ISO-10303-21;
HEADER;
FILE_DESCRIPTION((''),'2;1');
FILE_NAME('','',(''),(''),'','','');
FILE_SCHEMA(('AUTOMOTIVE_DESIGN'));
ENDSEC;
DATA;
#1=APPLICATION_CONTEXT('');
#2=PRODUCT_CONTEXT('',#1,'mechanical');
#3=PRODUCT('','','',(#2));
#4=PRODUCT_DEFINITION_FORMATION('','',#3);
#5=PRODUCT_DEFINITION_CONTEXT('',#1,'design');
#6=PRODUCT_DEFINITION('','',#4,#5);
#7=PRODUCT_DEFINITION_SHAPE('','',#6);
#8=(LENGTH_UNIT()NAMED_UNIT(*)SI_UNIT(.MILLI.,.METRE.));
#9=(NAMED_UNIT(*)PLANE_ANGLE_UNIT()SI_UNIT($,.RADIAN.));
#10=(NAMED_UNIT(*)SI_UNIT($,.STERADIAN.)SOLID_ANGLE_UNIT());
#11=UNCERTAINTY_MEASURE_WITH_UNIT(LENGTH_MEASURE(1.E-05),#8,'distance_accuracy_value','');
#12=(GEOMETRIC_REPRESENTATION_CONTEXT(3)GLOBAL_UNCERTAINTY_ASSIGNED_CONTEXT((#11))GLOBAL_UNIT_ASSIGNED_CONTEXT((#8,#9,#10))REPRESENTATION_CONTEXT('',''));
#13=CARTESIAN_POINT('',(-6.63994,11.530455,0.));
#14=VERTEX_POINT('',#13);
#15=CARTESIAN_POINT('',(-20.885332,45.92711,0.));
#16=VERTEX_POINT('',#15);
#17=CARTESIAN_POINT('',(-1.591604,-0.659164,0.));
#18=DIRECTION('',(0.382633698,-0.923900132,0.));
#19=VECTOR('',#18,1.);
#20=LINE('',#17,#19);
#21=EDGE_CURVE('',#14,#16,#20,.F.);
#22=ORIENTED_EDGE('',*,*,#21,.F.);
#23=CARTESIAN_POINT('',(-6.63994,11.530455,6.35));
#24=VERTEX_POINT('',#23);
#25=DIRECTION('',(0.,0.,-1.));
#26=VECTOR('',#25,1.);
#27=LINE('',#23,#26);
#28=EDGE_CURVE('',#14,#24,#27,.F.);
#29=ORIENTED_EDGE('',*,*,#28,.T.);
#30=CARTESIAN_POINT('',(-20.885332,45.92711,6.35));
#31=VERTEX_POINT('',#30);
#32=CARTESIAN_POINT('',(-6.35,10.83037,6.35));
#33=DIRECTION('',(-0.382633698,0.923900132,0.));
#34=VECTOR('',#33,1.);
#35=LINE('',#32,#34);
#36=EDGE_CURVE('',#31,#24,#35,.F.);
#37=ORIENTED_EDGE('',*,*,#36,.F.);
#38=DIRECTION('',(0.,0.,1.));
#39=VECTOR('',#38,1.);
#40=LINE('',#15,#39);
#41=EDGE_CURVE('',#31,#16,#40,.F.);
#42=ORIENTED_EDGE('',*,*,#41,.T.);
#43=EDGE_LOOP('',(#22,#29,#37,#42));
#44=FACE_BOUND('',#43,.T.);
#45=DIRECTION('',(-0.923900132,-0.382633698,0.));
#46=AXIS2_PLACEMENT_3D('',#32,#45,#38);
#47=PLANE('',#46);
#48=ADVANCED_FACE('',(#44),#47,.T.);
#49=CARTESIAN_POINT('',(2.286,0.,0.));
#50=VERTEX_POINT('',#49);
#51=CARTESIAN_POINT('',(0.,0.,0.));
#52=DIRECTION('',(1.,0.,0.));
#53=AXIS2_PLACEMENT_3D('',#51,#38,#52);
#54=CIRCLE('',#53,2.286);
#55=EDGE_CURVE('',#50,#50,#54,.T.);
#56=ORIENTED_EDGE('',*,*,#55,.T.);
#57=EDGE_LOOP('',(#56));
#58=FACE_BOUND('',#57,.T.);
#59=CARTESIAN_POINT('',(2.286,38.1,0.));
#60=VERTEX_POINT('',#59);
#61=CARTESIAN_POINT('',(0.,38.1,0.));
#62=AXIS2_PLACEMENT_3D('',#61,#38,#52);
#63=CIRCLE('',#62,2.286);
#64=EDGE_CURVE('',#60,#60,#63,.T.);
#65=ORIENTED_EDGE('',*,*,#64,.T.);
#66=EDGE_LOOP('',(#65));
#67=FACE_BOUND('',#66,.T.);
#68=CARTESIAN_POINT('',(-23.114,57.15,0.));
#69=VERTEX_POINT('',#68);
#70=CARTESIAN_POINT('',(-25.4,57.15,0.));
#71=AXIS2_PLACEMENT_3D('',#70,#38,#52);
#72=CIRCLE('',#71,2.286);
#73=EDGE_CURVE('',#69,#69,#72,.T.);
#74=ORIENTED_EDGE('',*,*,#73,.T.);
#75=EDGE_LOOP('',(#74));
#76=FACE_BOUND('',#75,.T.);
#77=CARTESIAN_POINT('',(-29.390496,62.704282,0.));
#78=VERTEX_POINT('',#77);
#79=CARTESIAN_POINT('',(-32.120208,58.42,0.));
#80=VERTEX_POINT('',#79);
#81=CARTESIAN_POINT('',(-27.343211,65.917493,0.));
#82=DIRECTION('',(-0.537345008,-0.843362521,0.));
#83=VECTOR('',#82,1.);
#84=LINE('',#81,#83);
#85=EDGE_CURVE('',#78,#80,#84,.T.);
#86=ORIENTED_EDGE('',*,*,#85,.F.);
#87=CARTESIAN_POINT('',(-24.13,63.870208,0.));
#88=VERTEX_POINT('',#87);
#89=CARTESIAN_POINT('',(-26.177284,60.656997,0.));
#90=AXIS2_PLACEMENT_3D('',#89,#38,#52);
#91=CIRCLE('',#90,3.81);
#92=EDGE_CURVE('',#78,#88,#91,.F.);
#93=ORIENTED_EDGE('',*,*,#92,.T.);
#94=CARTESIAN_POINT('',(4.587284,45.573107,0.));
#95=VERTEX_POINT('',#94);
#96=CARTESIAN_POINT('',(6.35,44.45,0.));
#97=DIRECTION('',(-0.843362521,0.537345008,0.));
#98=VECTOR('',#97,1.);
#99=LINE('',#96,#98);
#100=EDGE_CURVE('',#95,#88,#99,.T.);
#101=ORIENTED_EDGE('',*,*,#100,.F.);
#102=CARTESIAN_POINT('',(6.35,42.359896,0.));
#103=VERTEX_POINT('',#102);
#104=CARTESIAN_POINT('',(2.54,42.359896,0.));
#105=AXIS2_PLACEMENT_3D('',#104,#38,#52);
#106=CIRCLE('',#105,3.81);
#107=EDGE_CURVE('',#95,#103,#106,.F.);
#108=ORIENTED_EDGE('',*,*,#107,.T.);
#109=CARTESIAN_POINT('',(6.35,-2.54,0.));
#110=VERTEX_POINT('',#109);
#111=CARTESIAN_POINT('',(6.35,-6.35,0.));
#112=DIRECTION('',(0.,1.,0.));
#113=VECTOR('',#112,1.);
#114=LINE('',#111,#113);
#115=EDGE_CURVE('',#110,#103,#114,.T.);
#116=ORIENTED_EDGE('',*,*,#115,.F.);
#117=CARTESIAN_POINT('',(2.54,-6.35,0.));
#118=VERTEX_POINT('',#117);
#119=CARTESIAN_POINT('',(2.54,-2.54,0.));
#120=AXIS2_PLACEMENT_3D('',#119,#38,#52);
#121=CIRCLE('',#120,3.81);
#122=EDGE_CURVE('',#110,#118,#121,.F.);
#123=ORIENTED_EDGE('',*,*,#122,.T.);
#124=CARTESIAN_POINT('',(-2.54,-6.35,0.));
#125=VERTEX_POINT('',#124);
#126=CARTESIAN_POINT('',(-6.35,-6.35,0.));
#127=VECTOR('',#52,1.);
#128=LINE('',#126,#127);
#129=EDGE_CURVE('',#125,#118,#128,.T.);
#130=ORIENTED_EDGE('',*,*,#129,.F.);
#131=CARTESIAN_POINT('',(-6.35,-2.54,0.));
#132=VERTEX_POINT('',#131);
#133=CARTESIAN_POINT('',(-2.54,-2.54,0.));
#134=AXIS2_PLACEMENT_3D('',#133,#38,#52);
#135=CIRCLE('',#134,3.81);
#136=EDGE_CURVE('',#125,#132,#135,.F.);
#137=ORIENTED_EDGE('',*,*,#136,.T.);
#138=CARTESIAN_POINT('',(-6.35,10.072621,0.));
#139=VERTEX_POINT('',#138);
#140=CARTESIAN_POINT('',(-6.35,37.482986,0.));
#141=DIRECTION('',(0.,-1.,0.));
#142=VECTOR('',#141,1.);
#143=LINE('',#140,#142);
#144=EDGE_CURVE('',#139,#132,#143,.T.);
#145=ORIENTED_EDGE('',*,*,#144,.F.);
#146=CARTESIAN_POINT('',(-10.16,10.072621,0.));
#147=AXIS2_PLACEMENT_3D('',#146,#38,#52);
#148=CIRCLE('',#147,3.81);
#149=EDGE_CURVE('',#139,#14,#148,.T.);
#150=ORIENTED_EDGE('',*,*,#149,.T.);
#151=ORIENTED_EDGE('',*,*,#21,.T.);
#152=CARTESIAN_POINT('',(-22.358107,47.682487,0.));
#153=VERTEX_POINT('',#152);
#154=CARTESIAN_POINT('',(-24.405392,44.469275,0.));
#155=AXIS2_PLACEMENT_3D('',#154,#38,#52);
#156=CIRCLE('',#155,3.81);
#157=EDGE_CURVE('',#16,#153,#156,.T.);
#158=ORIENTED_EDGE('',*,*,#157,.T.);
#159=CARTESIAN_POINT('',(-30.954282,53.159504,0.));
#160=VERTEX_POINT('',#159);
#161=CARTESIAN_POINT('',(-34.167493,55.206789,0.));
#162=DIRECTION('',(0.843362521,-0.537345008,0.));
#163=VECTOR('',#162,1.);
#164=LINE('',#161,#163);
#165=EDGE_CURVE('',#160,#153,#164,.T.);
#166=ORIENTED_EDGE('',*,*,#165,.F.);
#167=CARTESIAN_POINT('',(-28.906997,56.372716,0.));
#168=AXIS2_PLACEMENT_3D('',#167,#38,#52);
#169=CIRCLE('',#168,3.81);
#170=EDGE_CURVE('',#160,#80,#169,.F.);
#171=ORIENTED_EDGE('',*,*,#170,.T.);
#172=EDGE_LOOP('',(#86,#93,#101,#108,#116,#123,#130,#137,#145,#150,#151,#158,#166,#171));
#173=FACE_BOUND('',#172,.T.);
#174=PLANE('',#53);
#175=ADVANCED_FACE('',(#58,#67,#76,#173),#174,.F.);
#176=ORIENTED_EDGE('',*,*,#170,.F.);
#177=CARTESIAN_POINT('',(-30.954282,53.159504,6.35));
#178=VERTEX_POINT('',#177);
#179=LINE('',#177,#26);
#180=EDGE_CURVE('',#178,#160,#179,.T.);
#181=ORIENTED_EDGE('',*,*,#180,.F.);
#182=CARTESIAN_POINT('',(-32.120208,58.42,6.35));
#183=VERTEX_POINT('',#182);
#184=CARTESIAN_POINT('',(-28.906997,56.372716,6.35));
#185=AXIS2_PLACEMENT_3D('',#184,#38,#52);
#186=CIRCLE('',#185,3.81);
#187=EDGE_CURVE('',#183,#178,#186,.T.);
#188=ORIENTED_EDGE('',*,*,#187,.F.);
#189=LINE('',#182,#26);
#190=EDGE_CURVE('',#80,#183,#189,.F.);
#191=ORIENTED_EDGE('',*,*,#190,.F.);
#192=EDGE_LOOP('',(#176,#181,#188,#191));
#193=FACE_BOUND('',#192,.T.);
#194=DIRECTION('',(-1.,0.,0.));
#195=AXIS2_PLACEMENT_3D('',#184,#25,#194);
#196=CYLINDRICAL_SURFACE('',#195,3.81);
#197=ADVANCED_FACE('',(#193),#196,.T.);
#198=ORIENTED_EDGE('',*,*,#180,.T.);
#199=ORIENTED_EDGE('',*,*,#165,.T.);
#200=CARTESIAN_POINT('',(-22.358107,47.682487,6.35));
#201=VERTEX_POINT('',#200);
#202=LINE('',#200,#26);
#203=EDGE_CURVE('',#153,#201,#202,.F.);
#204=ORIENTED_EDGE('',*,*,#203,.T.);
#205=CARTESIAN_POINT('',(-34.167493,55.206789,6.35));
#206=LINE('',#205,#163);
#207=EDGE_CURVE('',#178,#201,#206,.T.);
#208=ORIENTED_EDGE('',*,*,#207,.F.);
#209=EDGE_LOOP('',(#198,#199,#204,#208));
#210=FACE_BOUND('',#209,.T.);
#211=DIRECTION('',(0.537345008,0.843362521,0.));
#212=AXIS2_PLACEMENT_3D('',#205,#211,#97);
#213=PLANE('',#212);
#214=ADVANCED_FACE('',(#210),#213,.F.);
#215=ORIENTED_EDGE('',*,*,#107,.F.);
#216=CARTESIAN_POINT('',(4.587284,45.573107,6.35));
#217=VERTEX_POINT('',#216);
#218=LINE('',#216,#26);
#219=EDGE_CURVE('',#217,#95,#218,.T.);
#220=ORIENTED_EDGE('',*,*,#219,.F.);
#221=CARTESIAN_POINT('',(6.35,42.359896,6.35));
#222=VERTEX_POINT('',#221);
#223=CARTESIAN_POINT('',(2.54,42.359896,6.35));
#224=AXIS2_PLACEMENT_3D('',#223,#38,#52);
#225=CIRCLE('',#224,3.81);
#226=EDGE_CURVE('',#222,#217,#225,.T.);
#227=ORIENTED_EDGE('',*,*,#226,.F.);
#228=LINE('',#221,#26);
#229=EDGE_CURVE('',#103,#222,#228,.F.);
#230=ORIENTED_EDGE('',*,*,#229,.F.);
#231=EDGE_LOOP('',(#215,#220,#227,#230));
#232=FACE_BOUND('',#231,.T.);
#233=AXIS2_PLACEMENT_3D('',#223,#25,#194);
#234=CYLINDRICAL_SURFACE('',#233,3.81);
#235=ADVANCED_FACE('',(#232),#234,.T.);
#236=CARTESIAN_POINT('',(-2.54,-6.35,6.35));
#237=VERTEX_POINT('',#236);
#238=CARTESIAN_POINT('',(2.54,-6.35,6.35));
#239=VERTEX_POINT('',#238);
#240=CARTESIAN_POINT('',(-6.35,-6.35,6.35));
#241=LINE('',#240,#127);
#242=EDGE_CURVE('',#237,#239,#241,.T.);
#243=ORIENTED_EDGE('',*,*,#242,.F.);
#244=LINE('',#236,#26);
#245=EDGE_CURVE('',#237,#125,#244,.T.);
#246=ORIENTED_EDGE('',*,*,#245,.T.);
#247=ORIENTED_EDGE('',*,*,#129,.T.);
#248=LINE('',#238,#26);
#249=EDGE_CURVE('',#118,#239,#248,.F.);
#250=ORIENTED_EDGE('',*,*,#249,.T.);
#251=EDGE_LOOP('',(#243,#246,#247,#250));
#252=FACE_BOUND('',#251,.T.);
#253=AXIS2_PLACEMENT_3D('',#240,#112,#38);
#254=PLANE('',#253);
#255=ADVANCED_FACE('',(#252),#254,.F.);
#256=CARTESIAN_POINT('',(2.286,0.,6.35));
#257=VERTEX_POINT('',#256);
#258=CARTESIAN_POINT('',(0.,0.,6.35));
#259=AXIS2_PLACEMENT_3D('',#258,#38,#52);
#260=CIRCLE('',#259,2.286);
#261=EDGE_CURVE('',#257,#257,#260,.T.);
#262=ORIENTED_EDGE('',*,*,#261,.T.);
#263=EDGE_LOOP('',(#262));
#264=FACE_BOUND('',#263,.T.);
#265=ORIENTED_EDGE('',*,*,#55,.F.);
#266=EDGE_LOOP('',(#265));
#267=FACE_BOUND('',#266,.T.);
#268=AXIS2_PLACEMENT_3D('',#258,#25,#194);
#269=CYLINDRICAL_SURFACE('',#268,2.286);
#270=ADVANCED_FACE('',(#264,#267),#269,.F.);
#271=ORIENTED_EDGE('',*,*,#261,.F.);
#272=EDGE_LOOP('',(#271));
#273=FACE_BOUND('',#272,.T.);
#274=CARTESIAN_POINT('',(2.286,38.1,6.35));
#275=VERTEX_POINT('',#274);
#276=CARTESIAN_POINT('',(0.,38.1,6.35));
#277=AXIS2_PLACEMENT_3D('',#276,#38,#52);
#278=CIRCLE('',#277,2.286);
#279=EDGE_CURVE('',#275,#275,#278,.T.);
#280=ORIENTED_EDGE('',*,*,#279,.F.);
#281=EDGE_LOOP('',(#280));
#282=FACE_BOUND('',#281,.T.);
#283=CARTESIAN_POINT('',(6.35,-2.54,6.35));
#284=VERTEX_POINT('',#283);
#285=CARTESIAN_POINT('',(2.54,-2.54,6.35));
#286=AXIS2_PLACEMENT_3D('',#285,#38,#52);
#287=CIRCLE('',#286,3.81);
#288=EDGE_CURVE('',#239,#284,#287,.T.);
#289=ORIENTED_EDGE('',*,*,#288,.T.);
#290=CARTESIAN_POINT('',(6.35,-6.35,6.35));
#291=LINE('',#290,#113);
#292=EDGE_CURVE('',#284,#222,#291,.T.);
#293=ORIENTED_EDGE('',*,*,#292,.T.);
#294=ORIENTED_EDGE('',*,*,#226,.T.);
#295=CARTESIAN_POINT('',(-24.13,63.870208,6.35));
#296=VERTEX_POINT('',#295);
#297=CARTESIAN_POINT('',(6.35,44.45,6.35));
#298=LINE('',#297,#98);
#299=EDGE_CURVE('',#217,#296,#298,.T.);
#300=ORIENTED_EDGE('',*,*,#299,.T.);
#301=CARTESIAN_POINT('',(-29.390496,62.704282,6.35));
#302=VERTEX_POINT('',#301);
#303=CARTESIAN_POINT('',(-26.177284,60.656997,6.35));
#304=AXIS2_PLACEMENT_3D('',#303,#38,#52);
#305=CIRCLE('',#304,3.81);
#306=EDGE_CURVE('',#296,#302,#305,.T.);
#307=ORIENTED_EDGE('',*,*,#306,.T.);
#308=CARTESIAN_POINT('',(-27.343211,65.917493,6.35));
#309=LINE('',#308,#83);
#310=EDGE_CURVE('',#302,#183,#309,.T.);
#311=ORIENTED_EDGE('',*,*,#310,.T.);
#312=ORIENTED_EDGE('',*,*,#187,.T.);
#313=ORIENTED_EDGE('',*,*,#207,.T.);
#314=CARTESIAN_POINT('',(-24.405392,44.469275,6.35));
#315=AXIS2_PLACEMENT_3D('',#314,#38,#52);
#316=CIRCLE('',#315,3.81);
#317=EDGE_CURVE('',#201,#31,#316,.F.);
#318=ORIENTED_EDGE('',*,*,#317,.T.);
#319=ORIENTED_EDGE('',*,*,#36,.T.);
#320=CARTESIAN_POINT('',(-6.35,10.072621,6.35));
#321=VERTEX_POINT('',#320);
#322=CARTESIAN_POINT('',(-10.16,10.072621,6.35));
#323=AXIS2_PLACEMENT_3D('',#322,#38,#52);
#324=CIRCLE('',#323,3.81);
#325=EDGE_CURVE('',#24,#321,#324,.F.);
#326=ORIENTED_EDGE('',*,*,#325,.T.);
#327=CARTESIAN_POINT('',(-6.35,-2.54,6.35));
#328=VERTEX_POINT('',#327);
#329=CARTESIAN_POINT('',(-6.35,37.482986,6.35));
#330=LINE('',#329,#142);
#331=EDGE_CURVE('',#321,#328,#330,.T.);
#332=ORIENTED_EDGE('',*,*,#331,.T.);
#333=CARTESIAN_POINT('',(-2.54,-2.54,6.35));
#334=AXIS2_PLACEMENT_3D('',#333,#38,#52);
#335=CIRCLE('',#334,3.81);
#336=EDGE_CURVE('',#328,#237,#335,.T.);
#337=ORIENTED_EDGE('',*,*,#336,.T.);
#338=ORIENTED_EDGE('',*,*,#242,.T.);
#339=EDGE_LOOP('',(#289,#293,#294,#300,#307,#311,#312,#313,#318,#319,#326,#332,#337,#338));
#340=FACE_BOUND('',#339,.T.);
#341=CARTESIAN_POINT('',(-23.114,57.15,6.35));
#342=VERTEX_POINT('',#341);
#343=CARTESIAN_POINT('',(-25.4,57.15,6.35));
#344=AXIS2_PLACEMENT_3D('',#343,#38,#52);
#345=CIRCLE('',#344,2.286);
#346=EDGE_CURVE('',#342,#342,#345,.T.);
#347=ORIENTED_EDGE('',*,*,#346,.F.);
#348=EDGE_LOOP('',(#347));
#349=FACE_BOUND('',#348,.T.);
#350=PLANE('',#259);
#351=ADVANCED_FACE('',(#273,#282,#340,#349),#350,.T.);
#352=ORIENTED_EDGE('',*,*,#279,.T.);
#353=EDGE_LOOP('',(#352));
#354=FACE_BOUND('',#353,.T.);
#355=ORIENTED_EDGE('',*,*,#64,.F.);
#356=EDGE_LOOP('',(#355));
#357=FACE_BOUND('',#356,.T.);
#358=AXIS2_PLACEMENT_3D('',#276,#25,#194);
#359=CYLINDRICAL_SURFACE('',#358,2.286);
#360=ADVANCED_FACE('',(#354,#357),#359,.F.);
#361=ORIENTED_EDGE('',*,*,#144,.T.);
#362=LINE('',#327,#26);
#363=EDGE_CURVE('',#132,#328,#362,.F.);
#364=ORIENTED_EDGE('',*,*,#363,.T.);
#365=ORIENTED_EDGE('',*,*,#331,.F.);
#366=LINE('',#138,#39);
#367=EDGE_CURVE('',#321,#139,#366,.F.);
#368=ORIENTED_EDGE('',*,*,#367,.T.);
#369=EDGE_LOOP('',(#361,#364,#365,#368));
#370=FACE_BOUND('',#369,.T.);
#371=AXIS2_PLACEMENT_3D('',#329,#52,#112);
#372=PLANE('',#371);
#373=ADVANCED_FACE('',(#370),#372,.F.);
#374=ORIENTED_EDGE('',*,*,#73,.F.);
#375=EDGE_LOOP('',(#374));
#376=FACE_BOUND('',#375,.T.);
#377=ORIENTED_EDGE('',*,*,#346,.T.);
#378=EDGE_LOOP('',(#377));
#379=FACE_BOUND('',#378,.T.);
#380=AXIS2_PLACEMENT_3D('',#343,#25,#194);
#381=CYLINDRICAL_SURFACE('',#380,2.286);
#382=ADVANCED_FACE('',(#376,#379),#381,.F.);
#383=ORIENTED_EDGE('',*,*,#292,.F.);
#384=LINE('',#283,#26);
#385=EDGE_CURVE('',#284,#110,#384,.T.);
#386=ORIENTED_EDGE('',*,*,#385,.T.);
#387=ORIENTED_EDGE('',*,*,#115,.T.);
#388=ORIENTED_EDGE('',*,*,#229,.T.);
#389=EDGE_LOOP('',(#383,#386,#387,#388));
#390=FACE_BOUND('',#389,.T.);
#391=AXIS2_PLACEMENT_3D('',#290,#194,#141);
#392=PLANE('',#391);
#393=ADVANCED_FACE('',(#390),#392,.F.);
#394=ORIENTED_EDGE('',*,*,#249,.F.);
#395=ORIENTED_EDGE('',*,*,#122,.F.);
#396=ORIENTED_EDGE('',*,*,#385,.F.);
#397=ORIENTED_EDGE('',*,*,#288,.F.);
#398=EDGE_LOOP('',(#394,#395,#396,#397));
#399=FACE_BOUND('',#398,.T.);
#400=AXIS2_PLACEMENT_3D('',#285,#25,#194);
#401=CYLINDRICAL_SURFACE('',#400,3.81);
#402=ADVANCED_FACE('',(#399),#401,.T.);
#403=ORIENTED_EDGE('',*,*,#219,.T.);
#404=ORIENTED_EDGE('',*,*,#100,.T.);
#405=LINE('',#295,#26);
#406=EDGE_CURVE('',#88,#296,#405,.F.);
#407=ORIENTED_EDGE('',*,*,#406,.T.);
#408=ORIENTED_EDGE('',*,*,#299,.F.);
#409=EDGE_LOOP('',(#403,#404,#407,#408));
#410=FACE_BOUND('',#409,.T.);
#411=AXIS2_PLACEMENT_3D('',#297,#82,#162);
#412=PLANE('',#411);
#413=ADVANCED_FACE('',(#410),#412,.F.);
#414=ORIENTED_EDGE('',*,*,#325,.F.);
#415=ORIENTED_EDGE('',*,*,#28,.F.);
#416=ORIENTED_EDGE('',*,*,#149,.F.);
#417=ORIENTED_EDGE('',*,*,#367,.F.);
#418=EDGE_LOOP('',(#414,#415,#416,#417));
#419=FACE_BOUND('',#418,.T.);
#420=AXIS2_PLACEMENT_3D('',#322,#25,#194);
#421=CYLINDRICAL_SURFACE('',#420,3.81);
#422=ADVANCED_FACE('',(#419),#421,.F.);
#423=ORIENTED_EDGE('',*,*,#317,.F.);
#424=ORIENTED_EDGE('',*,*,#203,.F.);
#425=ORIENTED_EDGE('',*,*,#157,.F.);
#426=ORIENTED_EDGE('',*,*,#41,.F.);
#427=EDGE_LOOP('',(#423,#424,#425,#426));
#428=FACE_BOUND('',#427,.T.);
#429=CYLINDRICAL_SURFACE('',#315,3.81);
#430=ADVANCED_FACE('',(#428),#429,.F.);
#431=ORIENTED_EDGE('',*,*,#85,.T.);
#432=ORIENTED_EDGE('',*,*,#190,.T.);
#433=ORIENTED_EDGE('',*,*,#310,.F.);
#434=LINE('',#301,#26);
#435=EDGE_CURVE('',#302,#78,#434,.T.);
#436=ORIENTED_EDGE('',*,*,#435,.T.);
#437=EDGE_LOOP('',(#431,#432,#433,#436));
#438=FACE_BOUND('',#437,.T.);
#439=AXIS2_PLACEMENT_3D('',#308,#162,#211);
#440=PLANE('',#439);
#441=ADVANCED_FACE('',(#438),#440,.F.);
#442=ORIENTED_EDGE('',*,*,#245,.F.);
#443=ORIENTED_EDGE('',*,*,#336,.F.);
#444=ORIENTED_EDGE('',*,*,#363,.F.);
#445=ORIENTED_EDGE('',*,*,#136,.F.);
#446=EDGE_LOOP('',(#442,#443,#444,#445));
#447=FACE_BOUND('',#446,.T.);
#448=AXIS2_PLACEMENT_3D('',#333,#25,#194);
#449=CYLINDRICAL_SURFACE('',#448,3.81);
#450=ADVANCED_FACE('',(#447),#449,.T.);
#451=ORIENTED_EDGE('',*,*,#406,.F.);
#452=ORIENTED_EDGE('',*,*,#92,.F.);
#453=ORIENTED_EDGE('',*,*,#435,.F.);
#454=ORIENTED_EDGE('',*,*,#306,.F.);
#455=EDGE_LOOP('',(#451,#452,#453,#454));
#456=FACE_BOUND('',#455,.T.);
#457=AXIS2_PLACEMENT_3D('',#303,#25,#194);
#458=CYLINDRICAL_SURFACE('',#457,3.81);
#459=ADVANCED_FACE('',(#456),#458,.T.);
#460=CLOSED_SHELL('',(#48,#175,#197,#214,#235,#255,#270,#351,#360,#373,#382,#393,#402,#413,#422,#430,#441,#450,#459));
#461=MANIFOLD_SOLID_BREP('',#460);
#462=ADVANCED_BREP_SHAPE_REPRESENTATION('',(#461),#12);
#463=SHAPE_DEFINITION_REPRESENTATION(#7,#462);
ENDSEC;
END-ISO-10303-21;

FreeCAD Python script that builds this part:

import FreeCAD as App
import Part
import Sketcher
Q = App.Units.Quantity


def edges_at(feature, points):
    """Names of the edges that pass closest to the given points."""
    edges = feature.Shape.Edges
    near = lambda p: min(range(len(edges)), key=lambda i: edges[i].distToShape(Part.Vertex(*p))[0])
    return sorted({f"Edge{near(p) + 1}" for p in points})

doc = App.newDocument("Part")
body = doc.addObject("PartDesign::Body", "Body")

sketch1 = body.newObject("Sketcher::SketchObject", "Sketch")
sketch1.AttachmentSupport = (doc.getObject("XY_Plane"), [""])
sketch1.MapMode = "FlatFace"
sketch1.addGeometry([
    Part.LineSegment(App.Vector(-34.2, 55.2, 0), App.Vector(-6.3, 37.5, 0)),
    Part.LineSegment(App.Vector(-6.3, 37.5, 0), App.Vector(-6.3, -6.3, 0)),
    Part.LineSegment(App.Vector(-6.3, -6.3, 0), App.Vector(6.3, -6.3, 0)),
    Part.LineSegment(App.Vector(6.3, -6.3, 0), App.Vector(6.3, 44.5, 0)),
    Part.LineSegment(App.Vector(6.3, 44.5, 0), App.Vector(-27.3, 65.9, 0)),
    Part.LineSegment(App.Vector(-27.3, 65.9, 0), App.Vector(-34.2, 55.2, 0)),
    Part.Circle(App.Vector(0, 0, 0), App.Vector(0, 0, 1), 2.3),
    Part.Circle(App.Vector(-25.4, 57.1, 0), App.Vector(0, 0, 1), 2.3),
    Part.Circle(App.Vector(0, 38.1, 0), App.Vector(0, 0, 1), 2.3),
], False)
sketch1.addConstraint([
    Sketcher.Constraint("Coincident", 0, 2, 1, 1),
    Sketcher.Constraint("Coincident", 1, 2, 2, 1),
    Sketcher.Constraint("Coincident", 2, 2, 3, 1),
    Sketcher.Constraint("Coincident", 3, 2, 4, 1),
    Sketcher.Constraint("Coincident", 4, 2, 5, 1),
    Sketcher.Constraint("Coincident", 5, 2, 0, 1),
    Sketcher.Constraint("Vertical", 1),
    Sketcher.Constraint("Horizontal", 2),
    Sketcher.Constraint("Vertical", 3),
    Sketcher.Constraint("Coincident", 6, 3, -1, 1),
    Sketcher.Constraint("Equal", 6, 7),
    Sketcher.Constraint("Equal", 7, 8),
    Sketcher.Constraint("PointOnObject", 8, 3, -2),
    Sketcher.Constraint("Parallel", 0, 4),
    Sketcher.Constraint("Perpendicular", 4, 5),
    Sketcher.Constraint("Diameter", 6, Q("0.18 in")),
    Sketcher.Constraint("DistanceY", 3, 1, 3, 2, Q("2 in")),
    Sketcher.Constraint("DistanceX", 2, 1, 2, 2, Q("0.5 in")),
    Sketcher.Constraint("DistanceX", 7, 3, -1, 1, Q("1 in")),
    Sketcher.Constraint("Distance", 5, Q("0.5 in")),
    Sketcher.Constraint("DistanceY", -1, 1, 8, 3, Q("1.5 in")),
    Sketcher.Constraint("DistanceY", 1, 2, 7, 3, Q("2.5 in")),
    Sketcher.Constraint("DistanceY", -1, 1, 7, 3, Q("2.25 in")),
    Sketcher.Constraint("DistanceX", 0, 2, -1, 1, Q("0.25 in")),
    Sketcher.Constraint("Distance", 4, 39.951042),
    Sketcher.Constraint("DistanceY", 1, 2, 1, 1, 43.832986),
])
pad1 = body.newObject("PartDesign::Pad", "Pad")
pad1.Profile = sketch1
pad1.Length = Q("0.25 in")
doc.recompute()

chamfer = body.newObject("PartDesign::Chamfer", "Chamfer")
chamfer.Base = (pad1, edges_at(pad1, [(-6.35, 37.483, 3.175)]))
chamfer.ChamferType = "Two distances"
chamfer.Size = Q("0.7 in")
chamfer.Size2 = 26.652616
doc.recompute()

fillet = body.newObject("PartDesign::Fillet", "Fillet")
fillet.Base = (chamfer, edges_at(chamfer, [
    (-27.343, 65.917, 3.175),
    (6.35, 44.45, 3.175),
    (6.35, -6.35, 3.175),
    (-6.35, -6.35, 3.175),
    (-34.167, 55.207, 3.175),
    (-6.35, 10.83, 3.175),
    (-21.345, 47.037, 3.175),
]))
fillet.Radius = Q("0.15 in")

doc.recompute()
